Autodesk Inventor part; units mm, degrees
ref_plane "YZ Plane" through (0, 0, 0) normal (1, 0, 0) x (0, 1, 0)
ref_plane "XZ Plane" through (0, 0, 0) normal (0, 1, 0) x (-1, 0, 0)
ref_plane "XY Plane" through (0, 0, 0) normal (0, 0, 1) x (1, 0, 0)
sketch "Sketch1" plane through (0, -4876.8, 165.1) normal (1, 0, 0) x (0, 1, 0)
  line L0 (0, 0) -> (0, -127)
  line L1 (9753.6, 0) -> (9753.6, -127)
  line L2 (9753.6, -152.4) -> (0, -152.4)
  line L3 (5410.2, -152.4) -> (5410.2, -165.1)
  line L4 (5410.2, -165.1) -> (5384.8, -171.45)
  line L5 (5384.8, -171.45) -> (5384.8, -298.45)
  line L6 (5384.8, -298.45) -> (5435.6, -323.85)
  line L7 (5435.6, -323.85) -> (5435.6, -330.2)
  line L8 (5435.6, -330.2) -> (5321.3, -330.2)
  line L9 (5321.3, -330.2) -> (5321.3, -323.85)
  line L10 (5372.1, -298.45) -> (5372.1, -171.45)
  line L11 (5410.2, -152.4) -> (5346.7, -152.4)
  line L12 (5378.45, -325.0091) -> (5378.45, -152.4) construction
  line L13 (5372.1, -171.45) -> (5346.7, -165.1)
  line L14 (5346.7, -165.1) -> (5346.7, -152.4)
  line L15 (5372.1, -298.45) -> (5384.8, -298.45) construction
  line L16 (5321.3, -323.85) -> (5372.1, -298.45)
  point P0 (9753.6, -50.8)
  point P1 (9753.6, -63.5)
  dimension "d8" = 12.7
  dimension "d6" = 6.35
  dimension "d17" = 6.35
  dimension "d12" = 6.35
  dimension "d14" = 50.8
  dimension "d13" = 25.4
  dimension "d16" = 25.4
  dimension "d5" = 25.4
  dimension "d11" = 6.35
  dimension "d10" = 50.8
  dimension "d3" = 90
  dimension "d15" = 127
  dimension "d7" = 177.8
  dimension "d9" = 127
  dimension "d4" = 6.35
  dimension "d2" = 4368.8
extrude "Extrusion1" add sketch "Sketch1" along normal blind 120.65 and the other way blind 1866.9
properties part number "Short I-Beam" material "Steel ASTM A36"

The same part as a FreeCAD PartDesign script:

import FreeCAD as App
import Part
import Sketcher
Q = App.Units.Quantity


def add_polygon(sketch, points):
    """Adds a closed chain of lines whose ends are joined by coincident constraints."""
    first, n = sketch.GeometryCount, len(points)
    for a, b in zip(points, points[1:] + points[:1]):
        sketch.addGeometry(Part.LineSegment(App.Vector(*a, 0), App.Vector(*b, 0)), False)
    for i in range(n):
        sketch.addConstraint(Sketcher.Constraint("Coincident", first + i, 2, first + (i + 1) % n, 1))

doc = App.newDocument("Part")
body = doc.addObject("PartDesign::Body", "Body")

sketch1 = body.newObject("Sketcher::SketchObject", "Sketch")
sketch1.AttachmentSupport = (doc.getObject("YZ_Plane"), [""])
sketch1.MapMode = "FlatFace"
add_polygon(sketch1, [(533, 0), (533, 13), (470, 13), (470, 0), (495, -6), (495, -133), (444, -159), (444, -165), (559, -165), (559, -159), (508, -133), (508, -6)])
sketch1.addConstraint([
    Sketcher.Constraint("Vertical", 0),
    Sketcher.Constraint("Horizontal", 1),
    Sketcher.Constraint("Vertical", 2),
    Sketcher.Constraint("Vertical", 4),
    Sketcher.Constraint("Vertical", 6),
    Sketcher.Constraint("Horizontal", 7),
    Sketcher.Constraint("Vertical", 8),
    Sketcher.Constraint("Vertical", 10),
    Sketcher.Constraint("PointOnObject", 2, 2, -1),
    Sketcher.Constraint("PointOnObject", 11, 2, -1),
    Sketcher.Constraint("Horizontal", 5, 2, 8, 2),
    Sketcher.Constraint("Horizontal", 4, 2, 9, 2),
    Sketcher.Constraint("Horizontal", 3, 2, 10, 2),
    Sketcher.Constraint("Equal", 5, 9),
    Sketcher.Constraint("Equal", 3, 11),
    Sketcher.Constraint("DistanceY", 4, 2, 4, 1, Q("5 in")),
    Sketcher.Constraint("DistanceY", 0, 1, 0, 2, Q("0.5 in")),
    Sketcher.Constraint("DistanceX", 2, 2, 3, 2, Q("1 in")),
    Sketcher.Constraint("DistanceX", 5, 2, 4, 2, Q("2 in")),
    Sketcher.Constraint("DistanceY", 5, 2, 4, 2, Q("1 in")),
    Sketcher.Constraint("DistanceY", 6, 2, 1, 2, Q("7 in")),
    Sketcher.Constraint("DistanceY", 6, 2, 6, 1, Q("0.25 in")),
    Sketcher.Constraint("DistanceX", 4, 2, 9, 2, Q("0.5 in")),
    Sketcher.Constraint("DistanceX", -1, 1, 0, 2, Q("21 in")),
])
pad1 = body.newObject("PartDesign::Pad", "Pad")
pad1.Profile = sketch1
pad1.Type = "TwoLengths"
pad1.Length = Q("4.75 in")
pad1.Length2 = Q("73.5 in")

doc.recompute()
